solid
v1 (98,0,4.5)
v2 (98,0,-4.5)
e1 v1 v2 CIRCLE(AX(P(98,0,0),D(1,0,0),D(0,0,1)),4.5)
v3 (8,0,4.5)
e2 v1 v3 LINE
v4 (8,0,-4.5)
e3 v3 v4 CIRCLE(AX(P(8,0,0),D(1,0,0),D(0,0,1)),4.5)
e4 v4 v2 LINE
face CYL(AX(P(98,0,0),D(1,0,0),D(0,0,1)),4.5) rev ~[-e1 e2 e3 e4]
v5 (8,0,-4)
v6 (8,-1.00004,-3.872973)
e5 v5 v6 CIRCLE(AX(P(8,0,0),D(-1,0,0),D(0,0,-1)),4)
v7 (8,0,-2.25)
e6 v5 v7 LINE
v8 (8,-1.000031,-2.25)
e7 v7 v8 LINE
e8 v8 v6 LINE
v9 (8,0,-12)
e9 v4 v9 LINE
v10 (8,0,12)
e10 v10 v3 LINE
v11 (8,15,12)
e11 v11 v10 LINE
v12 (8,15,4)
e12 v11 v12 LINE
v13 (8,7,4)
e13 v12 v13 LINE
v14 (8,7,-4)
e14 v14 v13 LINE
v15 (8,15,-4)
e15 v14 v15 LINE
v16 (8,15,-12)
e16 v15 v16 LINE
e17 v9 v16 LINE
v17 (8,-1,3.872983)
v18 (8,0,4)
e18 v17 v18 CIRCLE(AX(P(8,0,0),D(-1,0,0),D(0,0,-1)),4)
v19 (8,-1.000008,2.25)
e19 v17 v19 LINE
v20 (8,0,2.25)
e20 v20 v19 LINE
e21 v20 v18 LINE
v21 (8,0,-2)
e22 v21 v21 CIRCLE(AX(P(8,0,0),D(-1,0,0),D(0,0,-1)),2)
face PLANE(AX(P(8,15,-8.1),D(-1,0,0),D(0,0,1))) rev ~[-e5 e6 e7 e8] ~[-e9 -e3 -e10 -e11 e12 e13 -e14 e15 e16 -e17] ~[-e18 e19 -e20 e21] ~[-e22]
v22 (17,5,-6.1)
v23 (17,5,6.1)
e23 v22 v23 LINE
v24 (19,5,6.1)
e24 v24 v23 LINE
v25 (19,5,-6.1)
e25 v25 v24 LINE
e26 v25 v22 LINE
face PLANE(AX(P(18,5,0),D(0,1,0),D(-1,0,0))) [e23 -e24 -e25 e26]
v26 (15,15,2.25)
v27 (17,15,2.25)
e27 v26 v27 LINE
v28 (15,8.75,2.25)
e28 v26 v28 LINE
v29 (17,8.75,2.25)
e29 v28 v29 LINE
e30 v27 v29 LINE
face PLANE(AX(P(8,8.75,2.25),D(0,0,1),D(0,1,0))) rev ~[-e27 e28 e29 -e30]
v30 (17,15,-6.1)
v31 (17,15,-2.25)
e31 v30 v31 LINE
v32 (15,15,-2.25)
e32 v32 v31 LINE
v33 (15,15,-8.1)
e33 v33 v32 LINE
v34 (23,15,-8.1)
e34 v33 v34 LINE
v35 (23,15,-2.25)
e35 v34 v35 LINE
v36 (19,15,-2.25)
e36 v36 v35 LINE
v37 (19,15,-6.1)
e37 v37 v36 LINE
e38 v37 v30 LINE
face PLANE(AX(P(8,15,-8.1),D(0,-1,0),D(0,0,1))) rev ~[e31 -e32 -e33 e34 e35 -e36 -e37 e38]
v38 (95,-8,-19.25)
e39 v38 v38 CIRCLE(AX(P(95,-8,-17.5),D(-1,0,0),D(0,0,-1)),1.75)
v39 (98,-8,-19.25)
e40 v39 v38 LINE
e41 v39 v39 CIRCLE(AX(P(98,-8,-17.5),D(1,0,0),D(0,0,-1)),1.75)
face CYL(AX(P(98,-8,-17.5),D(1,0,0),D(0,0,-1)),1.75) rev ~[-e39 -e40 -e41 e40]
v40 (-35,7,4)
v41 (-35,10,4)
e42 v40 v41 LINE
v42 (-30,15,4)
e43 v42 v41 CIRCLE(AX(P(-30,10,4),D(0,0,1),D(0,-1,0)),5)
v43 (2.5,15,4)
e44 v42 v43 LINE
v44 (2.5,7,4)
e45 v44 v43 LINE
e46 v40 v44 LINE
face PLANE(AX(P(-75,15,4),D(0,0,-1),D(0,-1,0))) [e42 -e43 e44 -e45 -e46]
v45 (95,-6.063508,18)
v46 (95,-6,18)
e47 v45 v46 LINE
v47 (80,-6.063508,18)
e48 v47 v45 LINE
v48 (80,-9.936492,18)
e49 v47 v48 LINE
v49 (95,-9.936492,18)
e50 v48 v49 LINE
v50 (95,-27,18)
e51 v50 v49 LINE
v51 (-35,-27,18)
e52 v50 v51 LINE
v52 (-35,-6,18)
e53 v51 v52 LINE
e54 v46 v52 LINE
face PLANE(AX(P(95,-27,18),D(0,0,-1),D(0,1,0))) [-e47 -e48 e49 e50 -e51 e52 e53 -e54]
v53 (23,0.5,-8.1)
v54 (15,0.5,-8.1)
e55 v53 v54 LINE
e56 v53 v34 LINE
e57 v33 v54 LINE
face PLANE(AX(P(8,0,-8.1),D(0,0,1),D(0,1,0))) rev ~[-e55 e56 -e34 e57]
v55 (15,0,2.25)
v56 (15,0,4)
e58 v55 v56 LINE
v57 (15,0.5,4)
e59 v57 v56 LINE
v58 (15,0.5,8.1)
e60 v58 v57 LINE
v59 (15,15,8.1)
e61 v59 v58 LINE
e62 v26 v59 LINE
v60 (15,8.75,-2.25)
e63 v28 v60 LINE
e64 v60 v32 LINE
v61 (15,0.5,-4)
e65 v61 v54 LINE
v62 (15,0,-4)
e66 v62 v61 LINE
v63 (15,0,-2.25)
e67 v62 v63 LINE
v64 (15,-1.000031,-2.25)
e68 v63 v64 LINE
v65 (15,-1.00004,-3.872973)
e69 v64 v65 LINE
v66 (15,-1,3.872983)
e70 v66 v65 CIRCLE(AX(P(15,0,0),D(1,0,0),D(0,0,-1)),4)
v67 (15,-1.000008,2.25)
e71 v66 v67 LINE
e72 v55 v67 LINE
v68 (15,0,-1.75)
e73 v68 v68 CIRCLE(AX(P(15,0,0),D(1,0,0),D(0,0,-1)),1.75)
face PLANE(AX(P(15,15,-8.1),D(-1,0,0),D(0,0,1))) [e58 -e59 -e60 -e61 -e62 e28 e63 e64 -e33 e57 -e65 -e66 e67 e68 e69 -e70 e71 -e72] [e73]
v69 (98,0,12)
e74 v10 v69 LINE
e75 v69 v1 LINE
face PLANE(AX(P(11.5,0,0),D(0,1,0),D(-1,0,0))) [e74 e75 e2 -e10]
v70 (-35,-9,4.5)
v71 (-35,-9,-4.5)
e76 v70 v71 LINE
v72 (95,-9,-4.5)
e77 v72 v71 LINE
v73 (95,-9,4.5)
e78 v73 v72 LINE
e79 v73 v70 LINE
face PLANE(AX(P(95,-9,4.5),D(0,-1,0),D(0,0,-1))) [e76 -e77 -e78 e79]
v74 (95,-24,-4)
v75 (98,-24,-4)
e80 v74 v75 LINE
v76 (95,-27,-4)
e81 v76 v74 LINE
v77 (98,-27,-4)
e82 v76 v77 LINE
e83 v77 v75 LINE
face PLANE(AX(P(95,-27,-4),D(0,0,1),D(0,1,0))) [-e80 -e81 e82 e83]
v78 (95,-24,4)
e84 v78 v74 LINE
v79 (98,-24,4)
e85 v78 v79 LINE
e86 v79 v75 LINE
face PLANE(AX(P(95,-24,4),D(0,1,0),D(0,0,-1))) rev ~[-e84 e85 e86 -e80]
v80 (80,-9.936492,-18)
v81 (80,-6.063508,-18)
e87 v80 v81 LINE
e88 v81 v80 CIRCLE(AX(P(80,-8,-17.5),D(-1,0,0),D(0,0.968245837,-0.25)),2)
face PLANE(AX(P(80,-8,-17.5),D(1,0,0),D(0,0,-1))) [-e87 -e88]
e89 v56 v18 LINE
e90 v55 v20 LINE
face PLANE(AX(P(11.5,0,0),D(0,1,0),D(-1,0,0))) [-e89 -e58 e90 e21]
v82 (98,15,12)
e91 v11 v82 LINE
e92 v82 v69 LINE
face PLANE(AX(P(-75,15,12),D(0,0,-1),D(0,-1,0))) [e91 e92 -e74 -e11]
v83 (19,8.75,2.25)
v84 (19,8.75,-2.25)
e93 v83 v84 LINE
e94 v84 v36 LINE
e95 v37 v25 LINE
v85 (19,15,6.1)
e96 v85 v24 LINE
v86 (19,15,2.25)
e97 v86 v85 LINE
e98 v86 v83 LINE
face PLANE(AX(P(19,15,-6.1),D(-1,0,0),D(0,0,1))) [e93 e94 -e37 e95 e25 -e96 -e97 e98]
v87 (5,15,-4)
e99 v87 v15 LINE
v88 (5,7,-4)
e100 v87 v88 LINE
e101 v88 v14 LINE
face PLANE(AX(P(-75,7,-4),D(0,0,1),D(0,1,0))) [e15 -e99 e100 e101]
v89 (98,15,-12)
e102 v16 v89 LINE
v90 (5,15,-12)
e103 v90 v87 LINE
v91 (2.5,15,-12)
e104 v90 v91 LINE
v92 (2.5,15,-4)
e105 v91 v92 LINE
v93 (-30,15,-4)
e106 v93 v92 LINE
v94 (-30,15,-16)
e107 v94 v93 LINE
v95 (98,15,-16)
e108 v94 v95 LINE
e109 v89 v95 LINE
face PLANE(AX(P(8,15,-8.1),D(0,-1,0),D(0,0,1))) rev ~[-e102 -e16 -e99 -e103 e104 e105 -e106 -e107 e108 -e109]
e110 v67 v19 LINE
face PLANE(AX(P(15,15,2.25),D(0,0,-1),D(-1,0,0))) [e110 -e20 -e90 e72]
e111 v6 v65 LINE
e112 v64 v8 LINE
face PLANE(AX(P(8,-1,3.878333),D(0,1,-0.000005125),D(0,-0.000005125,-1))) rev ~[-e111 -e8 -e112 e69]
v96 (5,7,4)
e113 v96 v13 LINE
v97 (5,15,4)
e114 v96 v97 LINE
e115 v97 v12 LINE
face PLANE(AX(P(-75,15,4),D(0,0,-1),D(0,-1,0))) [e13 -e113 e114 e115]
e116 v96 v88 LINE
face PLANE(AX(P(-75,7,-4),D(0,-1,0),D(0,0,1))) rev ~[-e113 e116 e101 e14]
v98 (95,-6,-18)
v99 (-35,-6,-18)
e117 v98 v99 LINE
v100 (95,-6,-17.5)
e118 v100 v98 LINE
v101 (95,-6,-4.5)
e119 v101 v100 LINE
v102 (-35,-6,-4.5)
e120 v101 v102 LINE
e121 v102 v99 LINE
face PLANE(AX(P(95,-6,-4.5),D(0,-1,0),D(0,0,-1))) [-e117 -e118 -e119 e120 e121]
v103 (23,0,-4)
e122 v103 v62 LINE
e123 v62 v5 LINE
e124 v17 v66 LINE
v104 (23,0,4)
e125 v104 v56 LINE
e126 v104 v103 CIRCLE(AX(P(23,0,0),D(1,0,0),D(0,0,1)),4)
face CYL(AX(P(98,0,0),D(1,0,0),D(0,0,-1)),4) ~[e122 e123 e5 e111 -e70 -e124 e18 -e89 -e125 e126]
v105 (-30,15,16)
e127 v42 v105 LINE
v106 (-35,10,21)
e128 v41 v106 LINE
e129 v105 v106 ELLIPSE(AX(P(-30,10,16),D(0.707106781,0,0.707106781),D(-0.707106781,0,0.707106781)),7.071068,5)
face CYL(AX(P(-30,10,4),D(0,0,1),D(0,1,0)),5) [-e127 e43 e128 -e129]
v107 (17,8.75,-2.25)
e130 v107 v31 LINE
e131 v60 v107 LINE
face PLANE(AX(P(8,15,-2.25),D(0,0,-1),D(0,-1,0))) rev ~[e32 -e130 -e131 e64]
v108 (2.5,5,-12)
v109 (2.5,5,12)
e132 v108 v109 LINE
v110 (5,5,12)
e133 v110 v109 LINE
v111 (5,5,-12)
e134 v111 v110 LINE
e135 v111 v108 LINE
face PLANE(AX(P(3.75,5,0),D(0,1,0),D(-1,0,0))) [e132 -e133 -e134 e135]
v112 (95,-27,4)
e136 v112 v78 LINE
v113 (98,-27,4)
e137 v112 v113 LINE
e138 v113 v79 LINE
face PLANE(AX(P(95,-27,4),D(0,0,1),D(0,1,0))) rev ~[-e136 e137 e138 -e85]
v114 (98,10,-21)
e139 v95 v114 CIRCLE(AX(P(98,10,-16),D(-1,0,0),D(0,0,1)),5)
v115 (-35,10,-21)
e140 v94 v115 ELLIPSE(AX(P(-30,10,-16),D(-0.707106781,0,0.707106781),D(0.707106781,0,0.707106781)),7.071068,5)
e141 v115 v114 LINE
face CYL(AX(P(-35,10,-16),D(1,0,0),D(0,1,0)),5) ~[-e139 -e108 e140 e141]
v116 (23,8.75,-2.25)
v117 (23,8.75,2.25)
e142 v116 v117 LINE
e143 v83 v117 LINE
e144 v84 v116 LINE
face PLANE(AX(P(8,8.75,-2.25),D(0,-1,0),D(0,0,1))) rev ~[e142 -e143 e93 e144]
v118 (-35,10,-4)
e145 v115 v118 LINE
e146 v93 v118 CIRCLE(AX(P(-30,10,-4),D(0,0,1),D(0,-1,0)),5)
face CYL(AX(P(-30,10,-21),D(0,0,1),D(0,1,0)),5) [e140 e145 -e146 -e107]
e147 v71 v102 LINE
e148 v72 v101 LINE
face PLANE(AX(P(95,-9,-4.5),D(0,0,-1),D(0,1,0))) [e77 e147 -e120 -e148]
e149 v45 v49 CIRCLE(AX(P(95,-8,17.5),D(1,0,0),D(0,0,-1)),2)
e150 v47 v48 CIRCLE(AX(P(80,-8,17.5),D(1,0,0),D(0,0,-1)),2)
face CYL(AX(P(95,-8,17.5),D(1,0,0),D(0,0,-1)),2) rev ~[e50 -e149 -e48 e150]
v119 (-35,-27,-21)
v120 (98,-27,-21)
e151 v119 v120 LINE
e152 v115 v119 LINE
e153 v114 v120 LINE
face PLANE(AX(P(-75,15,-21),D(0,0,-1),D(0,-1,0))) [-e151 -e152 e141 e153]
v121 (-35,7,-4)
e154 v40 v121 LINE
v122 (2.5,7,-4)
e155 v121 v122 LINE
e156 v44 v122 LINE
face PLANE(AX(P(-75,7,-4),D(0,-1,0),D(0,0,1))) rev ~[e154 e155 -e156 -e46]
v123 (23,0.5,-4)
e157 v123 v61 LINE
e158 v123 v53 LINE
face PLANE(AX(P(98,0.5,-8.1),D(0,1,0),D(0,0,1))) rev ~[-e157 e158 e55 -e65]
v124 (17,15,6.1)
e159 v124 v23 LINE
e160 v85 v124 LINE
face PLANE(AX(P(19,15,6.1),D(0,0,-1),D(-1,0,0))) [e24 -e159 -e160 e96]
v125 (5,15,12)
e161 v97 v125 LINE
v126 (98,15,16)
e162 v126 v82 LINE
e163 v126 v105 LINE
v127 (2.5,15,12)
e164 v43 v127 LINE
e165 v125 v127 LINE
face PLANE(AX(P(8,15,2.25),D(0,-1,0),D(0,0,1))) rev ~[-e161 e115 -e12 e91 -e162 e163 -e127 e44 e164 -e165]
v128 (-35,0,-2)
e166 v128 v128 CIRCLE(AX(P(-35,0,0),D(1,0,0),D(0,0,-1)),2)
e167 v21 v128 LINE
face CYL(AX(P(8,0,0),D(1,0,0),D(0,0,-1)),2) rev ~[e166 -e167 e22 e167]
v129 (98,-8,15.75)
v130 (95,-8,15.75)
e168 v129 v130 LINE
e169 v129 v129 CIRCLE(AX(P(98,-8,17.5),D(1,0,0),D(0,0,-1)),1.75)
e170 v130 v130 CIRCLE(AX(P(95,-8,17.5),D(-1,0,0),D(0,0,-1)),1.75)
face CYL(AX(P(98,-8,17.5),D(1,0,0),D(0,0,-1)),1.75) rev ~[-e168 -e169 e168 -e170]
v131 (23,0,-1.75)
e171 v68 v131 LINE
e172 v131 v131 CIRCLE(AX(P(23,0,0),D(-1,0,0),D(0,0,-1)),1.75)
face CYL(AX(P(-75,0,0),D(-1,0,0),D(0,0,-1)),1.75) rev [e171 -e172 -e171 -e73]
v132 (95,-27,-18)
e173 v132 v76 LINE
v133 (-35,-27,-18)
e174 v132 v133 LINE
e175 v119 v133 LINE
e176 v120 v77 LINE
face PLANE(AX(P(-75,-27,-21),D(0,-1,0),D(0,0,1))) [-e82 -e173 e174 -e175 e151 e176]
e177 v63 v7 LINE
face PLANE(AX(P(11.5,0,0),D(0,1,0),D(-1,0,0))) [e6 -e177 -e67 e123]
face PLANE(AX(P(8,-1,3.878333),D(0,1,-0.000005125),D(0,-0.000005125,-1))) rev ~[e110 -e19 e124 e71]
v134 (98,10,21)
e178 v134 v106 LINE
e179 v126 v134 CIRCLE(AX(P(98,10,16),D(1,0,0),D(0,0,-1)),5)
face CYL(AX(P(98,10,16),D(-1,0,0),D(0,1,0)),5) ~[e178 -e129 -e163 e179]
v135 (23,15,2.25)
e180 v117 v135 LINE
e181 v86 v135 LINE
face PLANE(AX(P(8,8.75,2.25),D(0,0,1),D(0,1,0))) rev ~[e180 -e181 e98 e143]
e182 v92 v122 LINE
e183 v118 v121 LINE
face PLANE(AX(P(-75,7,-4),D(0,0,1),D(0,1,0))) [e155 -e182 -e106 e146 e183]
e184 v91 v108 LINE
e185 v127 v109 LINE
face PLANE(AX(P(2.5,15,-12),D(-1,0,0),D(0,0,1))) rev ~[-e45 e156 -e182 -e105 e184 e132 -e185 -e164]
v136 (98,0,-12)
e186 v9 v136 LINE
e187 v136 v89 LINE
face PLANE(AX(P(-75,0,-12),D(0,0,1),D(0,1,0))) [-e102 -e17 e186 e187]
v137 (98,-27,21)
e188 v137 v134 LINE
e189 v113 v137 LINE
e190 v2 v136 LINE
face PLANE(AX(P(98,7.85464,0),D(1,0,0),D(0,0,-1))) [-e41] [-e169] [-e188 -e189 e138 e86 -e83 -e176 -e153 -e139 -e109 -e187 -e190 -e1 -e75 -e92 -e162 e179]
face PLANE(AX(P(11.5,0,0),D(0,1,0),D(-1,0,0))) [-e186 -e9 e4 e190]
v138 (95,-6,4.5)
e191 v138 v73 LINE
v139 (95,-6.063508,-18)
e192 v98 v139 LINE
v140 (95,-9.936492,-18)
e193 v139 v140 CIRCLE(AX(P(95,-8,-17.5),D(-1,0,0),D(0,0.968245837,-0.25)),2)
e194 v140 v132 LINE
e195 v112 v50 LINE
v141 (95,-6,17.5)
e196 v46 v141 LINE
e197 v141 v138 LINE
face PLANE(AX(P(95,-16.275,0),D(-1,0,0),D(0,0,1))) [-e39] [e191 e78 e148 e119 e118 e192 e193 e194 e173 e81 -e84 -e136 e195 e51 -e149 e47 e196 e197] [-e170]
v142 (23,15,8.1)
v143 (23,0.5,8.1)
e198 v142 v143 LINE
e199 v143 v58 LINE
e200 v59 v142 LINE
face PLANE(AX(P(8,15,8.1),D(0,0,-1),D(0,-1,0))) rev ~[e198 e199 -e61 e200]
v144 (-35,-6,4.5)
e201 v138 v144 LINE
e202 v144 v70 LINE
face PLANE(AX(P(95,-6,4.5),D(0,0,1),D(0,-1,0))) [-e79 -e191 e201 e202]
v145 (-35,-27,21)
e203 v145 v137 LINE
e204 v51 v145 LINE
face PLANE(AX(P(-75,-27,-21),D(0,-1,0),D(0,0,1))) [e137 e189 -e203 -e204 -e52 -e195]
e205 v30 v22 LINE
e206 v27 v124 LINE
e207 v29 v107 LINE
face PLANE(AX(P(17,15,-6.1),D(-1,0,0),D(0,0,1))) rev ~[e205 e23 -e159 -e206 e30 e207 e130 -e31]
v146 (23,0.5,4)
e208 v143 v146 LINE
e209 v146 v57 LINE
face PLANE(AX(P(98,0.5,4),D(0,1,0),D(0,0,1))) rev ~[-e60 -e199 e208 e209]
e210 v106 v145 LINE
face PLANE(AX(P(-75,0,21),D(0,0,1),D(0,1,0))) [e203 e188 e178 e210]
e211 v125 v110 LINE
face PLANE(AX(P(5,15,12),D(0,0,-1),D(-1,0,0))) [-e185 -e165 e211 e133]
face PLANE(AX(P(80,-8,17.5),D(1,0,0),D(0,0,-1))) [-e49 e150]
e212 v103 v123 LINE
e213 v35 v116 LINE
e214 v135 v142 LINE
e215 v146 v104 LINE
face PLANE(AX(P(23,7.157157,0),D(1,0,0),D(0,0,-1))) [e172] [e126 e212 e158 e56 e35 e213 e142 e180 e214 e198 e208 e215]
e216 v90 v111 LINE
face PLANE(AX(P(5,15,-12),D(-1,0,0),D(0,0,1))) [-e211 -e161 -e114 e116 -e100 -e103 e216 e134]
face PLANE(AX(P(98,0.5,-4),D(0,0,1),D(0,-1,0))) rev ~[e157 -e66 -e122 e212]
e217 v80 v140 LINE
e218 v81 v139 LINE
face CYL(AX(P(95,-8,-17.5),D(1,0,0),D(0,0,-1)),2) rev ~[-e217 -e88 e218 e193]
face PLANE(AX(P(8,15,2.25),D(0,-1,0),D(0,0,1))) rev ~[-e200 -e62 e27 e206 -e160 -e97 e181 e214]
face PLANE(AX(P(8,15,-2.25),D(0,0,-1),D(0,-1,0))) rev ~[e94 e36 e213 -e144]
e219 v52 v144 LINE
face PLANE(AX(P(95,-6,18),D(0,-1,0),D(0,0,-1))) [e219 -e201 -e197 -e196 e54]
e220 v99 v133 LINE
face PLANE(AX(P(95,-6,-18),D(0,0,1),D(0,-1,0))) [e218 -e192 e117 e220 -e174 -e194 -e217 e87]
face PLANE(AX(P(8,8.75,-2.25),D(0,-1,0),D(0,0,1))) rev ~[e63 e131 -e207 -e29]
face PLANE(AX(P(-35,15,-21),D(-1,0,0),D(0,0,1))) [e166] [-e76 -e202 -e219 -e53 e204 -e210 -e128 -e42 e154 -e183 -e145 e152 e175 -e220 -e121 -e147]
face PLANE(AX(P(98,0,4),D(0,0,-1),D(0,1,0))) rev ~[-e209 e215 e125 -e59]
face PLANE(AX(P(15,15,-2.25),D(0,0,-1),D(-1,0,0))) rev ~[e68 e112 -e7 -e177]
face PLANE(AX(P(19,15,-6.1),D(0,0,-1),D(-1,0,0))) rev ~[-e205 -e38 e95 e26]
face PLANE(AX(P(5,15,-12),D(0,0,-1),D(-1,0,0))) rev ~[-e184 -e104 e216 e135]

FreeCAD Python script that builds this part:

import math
import FreeCAD as App
import Part
import Sketcher

V = App.Vector
Q = App.Units.Quantity


def edges_at(feature, points):
    """Names of the edges that pass closest to the given points."""
    edges = feature.Shape.Edges
    near = lambda p: min(range(len(edges)), key=lambda i: edges[i].distToShape(Part.Vertex(*p))[0])
    return sorted({f"Edge{near(p) + 1}" for p in points})


def add_polygon(sketch, points):
    """Adds a closed chain of lines whose ends are joined by coincident constraints."""
    first, n = sketch.GeometryCount, len(points)
    for a, b in zip(points, points[1:] + points[:1]):
        sketch.addGeometry(Part.LineSegment(App.Vector(*a, 0), App.Vector(*b, 0)), False)
    for i in range(n):
        sketch.addConstraint(Sketcher.Constraint("Coincident", first + i, 2, first + (i + 1) % n, 1))

doc = App.newDocument("Part")
body = doc.addObject("PartDesign::Body", "Body")

sketch1 = body.newObject("Sketcher::SketchObject", "Sketch")
sketch1.AttachmentSupport = (doc.getObject("YZ_Plane"), [""])
sketch1.MapMode = "FlatFace"
add_polygon(sketch1, [(15, 21), (0, 21), (0, -21), (15, -21), (15, -4), (7, -4), (7, 4), (15, 4)])
sketch1.addConstraint([
    Sketcher.Constraint("Horizontal", 0),
    Sketcher.Constraint("Vertical", 1),
    Sketcher.Constraint("Horizontal", 2),
    Sketcher.Constraint("Vertical", 3),
    Sketcher.Constraint("Horizontal", 4),
    Sketcher.Constraint("Vertical", 5),
    Sketcher.Constraint("Horizontal", 6),
    Sketcher.Constraint("Vertical", 7),
    Sketcher.Constraint("Symmetric", 0, 2, 1, 2, -1, 1),
    Sketcher.Constraint("Symmetric", 3, 2, 6, 2, -1),
    Sketcher.Constraint("Equal", 6, 5),
    Sketcher.Constraint("DistanceX", 0, 2, 0, 1, Q("15 mm")),
    Sketcher.Constraint("DistanceX", 4, 2, 4, 1, Q("8 mm")),
    Sketcher.Constraint("DistanceY", 1, 2, 1, 1, Q("42 mm")),
])
pad1 = body.newObject("PartDesign::Pad", "Pad")
pad1.Profile = sketch1
pad1.Type = "TwoLengths"
pad1.Length = 8
pad1.Length2 = 75

sketch2 = body.newObject("Sketcher::SketchObject", "Sketch001")
sketch2.AttachmentSupport = (doc.getObject("XZ_Plane"), [""])
sketch2.MapMode = "FlatFace"
sketch2.AttachmentOffset = App.Placement(V(0, 0, -15), App.Rotation())
add_polygon(sketch2, [(5, 12), (5, -12), (2.5, -12), (2.5, 12)])
sketch2.addConstraint([
    Sketcher.Constraint("Vertical", 0),
    Sketcher.Constraint("Horizontal", 1),
    Sketcher.Constraint("Vertical", 2),
    Sketcher.Constraint("Horizontal", 3),
    Sketcher.Constraint("DistanceY", 0, 2, 0, 1, Q("24 mm")),
    Sketcher.Constraint("DistanceX", 1, 2, 1, 1, Q("2.5 mm")),
    Sketcher.Constraint("DistanceX", -1, 1, 0, 2, Q("5 mm")),
    Sketcher.Constraint("DistanceY", 0, 2, -1, 1, Q("12 mm")),
])
pocket1 = body.newObject("PartDesign::Pocket", "Pocket")
pocket1.Profile = sketch2
pocket1.Length = 10
pocket1.Reversed = True

sketch3 = body.newObject("Sketcher::SketchObject", "Sketch002")
sketch3.AttachmentSupport = (doc.getObject("YZ_Plane"), [""])
sketch3.MapMode = "FlatFace"
sketch3.AttachmentOffset = App.Placement(V(0, 0, 8), App.Rotation())
add_polygon(sketch3, [(0, 12), (15, 12), (15, 21), (-27, 21), (-27, -21), (15, -21), (15, -12), (0, -12)])
sketch3.addConstraint([
    Sketcher.Constraint("Horizontal", 0),
    Sketcher.Constraint("Vertical", 1),
    Sketcher.Constraint("Horizontal", 2),
    Sketcher.Constraint("Vertical", 3),
    Sketcher.Constraint("Horizontal", 4),
    Sketcher.Constraint("Vertical", 5),
    Sketcher.Constraint("Horizontal", 6),
    Sketcher.Constraint("Vertical", 7),
    Sketcher.Constraint("Symmetric", 6, 2, 7, 2, -1, 1),
    Sketcher.Constraint("Symmetric", 1, 2, 4, 2, -1),
    Sketcher.Constraint("Equal", 4, 3),
    Sketcher.Constraint("DistanceX", 0, 1, 0, 2, Q("15 mm")),
    Sketcher.Constraint("DistanceX", 2, 2, 2, 1, Q("42 mm")),
    Sketcher.Constraint("DistanceY", 1, 1, 1, 2, Q("9 mm")),
])
pad2 = body.newObject("PartDesign::Pad", "Pad001")
pad2.Profile = sketch3
pad2.Type = "TwoLengths"
pad2.Length = 90
pad2.Length2 = 83

sketch4 = body.newObject("Sketcher::SketchObject", "Sketch003")
sketch4.AttachmentSupport = (doc.getObject("YZ_Plane"), [""])
sketch4.MapMode = "FlatFace"
sketch4.AttachmentOffset = App.Placement(V(0, 0, 8), App.Rotation())
add_polygon(sketch4, [(15, -2.25), (8.75, -2.25), (8.75, 2.25), (15, 2.25), (15, 8.1), (0, 8.1), (0, -8.1), (15, -8.1)])
sketch4.addConstraint([
    Sketcher.Constraint("Horizontal", 0),
    Sketcher.Constraint("Vertical", 1),
    Sketcher.Constraint("Horizontal", 2),
    Sketcher.Constraint("Vertical", 3),
    Sketcher.Constraint("Horizontal", 4),
    Sketcher.Constraint("Vertical", 5),
    Sketcher.Constraint("Horizontal", 6),
    Sketcher.Constraint("Vertical", 7),
    Sketcher.Constraint("Symmetric", 4, 2, 5, 2, -1, 1),
    Sketcher.Constraint("Symmetric", 2, 2, 7, 2, -1),
    Sketcher.Constraint("DistanceX", 4, 2, 4, 1, Q("15 mm")),
    Sketcher.Constraint("DistanceY", 1, 1, 1, 2, Q("4.5 mm")),
    Sketcher.Constraint("DistanceY", 5, 2, 5, 1, Q("16.2 mm")),
    Sketcher.Constraint("DistanceX", 0, 2, 0, 1, Q("6.25 mm")),
])
pad3 = body.newObject("PartDesign::Pad", "Pad002")
pad3.Profile = sketch4
pad3.Length = 90

sketch5 = body.newObject("Sketcher::SketchObject", "Sketch004")
sketch5.AttachmentSupport = (doc.getObject("XZ_Plane"), [""])
sketch5.MapMode = "FlatFace"
sketch5.AttachmentOffset = App.Placement(V(0, 0, -15), App.Rotation())
add_polygon(sketch5, [(15, 8.1), (15, -8.1), (8, -8.1), (8, 8.1)])
sketch5.addConstraint([
    Sketcher.Constraint("Vertical", 0),
    Sketcher.Constraint("Horizontal", 1),
    Sketcher.Constraint("Vertical", 2),
    Sketcher.Constraint("Horizontal", 3),
    Sketcher.Constraint("DistanceX", 1, 2, 1, 1, Q("7 mm")),
    Sketcher.Constraint("DistanceY", 0, 2, 0, 1, Q("16.2 mm")),
    Sketcher.Constraint("DistanceX", -1, 1, 0, 2, Q("15 mm")),
    Sketcher.Constraint("DistanceY", 0, 2, -1, 1, Q("8.1 mm")),
])
pocket2 = body.newObject("PartDesign::Pocket", "Pocket001")
pocket2.Profile = sketch5
pocket2.Length = 15
pocket2.Reversed = True

sketch6 = body.newObject("Sketcher::SketchObject", "Sketch005")
sketch6.AttachmentSupport = (doc.getObject("XZ_Plane"), [""])
sketch6.MapMode = "FlatFace"
sketch6.AttachmentOffset = App.Placement(V(0, 0, -15), App.Rotation())
add_polygon(sketch6, [(19, 6.1), (19, -6.1), (17, -6.1), (17, 6.1)])
sketch6.addConstraint([
    Sketcher.Constraint("Vertical", 0),
    Sketcher.Constraint("Horizontal", 1),
    Sketcher.Constraint("Vertical", 2),
    Sketcher.Constraint("Horizontal", 3),
    Sketcher.Constraint("DistanceX", 1, 2, 1, 1, Q("2 mm")),
    Sketcher.Constraint("DistanceY", 0, 2, 0, 1, Q("12.2 mm")),
    Sketcher.Constraint("DistanceX", -1, 1, 0, 2, Q("19 mm")),
    Sketcher.Constraint("DistanceY", 0, 2, -1, 1, Q("6.1 mm")),
])
pocket3 = body.newObject("PartDesign::Pocket", "Pocket002")
pocket3.Profile = sketch6
pocket3.Length = 10
pocket3.Reversed = True

sketch7 = body.newObject("Sketcher::SketchObject", "Sketch006")
sketch7.AttachmentSupport = (doc.getObject("YZ_Plane"), [""])
sketch7.MapMode = "FlatFace"
sketch7.AttachmentOffset = App.Placement(V(0, 0, 98), App.Rotation())
sketch7.addGeometry([
    Part.LineSegment(V(0, -4.5, 0), V(0, -8.1, 0)),
    Part.LineSegment(V(0, -8.1, 0), V(0.5, -8.1, 0)),
    Part.LineSegment(V(0.5, -8.1, 0), V(0.5, -4, 0)),
    Part.LineSegment(V(0.5, -4, 0), V(0, -4, 0)),
    Part.ArcOfCircle(Part.Circle(V(0, 0, 0), V(0, 0, 1), 4), math.radians(90), math.radians(270)),
    Part.LineSegment(V(0, 4, 0), V(0.5, 4, 0)),
    Part.LineSegment(V(0.5, 4, 0), V(0.5, 8.1, 0)),
    Part.LineSegment(V(0.5, 8.1, 0), V(0, 8.1, 0)),
    Part.LineSegment(V(0, 8.1, 0), V(0, 4.5, 0)),
    Part.ArcOfCircle(Part.Circle(V(0, 0, 0), V(0, 0, 1), 4.5), math.radians(90), math.radians(270)),
], False)
sketch7.addConstraint([
    Sketcher.Constraint("Coincident", 0, 2, 1, 1),
    Sketcher.Constraint("Coincident", 1, 2, 2, 1),
    Sketcher.Constraint("Coincident", 2, 2, 3, 1),
    Sketcher.Constraint("Tangent", 3, 2, 4, 2),
    Sketcher.Constraint("Tangent", 4, 1, 5, 1),
    Sketcher.Constraint("Coincident", 5, 2, 6, 1),
    Sketcher.Constraint("Coincident", 6, 2, 7, 1),
    Sketcher.Constraint("Coincident", 7, 2, 8, 1),
    Sketcher.Constraint("Coincident", 8, 2, 9, 1),
    Sketcher.Constraint("Coincident", 9, 2, 0, 1),
    Sketcher.Constraint("Vertical", 0),
    Sketcher.Constraint("Horizontal", 1),
    Sketcher.Constraint("Vertical", 2),
    Sketcher.Constraint("Horizontal", 3),
    Sketcher.Constraint("Horizontal", 5),
    Sketcher.Constraint("Vertical", 6),
    Sketcher.Constraint("Horizontal", 7),
    Sketcher.Constraint("Vertical", 8),
    Sketcher.Constraint("Coincident", 4, 3, -1, 1),
    Sketcher.Constraint("Coincident", 9, 3, -1, 1),
    Sketcher.Constraint("Symmetric", 0, 2, 7, 2, -1, 1),
    Sketcher.Constraint("PointOnObject", 0, 2, -2),
    Sketcher.Constraint("Vertical", 2, 2, 5, 2),
    Sketcher.Constraint("Radius", 4, Q("4 mm")),
    Sketcher.Constraint("Radius", 9, Q("4.5 mm")),
    Sketcher.Constraint("DistanceX", 1, 1, 1, 2, Q("0.5 mm")),
    Sketcher.Constraint("DistanceY", 0, 2, 0, 1, Q("3.6 mm")),
])
pocket4 = body.newObject("PartDesign::Pocket", "Pocket003")
pocket4.Profile = sketch7
pocket4.Length = 90

sketch8 = body.newObject("Sketcher::SketchObject", "Sketch007")
sketch8.AttachmentSupport = (doc.getObject("YZ_Plane"), [""])
sketch8.MapMode = "FlatFace"
sketch8.AttachmentOffset = App.Placement(V(0, 0, 98), App.Rotation())
sketch8.addGeometry([
    Part.LineSegment(V(15, 2.25, 0), V(15, 8.1, 0)),
    Part.LineSegment(V(15, 8.1, 0), V(0.5, 8.1, 0)),
    Part.LineSegment(V(0.5, 8.1, 0), V(0.5, 4, 0)),
    Part.LineSegment(V(0.5, 4, 0), V(0, 4, 0)),
    Part.ArcOfCircle(Part.Circle(V(0, 0, 0), V(0, 0, 1), 4), math.radians(90), math.radians(270)),
    Part.LineSegment(V(0, -4, 0), V(0.5, -4, 0)),
    Part.LineSegment(V(0.5, -4, 0), V(0.5, -8.1, 0)),
    Part.LineSegment(V(0.5, -8.1, 0), V(15, -8.1, 0)),
    Part.LineSegment(V(15, -8.1, 0), V(15, -2.25, 0)),
    Part.LineSegment(V(15, -2.25, 0), V(8.75, -2.25, 0)),
    Part.LineSegment(V(8.75, -2.25, 0), V(8.75, 2.25, 0)),
    Part.LineSegment(V(8.75, 2.25, 0), V(15, 2.25, 0)),
], False)
sketch8.addConstraint([
    Sketcher.Constraint("Coincident", 0, 2, 1, 1),
    Sketcher.Constraint("Coincident", 1, 2, 2, 1),
    Sketcher.Constraint("Coincident", 2, 2, 3, 1),
    Sketcher.Constraint("Tangent", 3, 2, 4, 1),
    Sketcher.Constraint("Tangent", 4, 2, 5, 1),
    Sketcher.Constraint("Coincident", 5, 2, 6, 1),
    Sketcher.Constraint("Coincident", 6, 2, 7, 1),
    Sketcher.Constraint("Coincident", 7, 2, 8, 1),
    Sketcher.Constraint("Coincident", 8, 2, 9, 1),
    Sketcher.Constraint("Coincident", 9, 2, 10, 1),
    Sketcher.Constraint("Coincident", 10, 2, 11, 1),
    Sketcher.Constraint("Coincident", 11, 2, 0, 1),
    Sketcher.Constraint("Vertical", 0),
    Sketcher.Constraint("Horizontal", 1),
    Sketcher.Constraint("Vertical", 2),
    Sketcher.Constraint("Horizontal", 3),
    Sketcher.Constraint("Horizontal", 5),
    Sketcher.Constraint("Vertical", 6),
    Sketcher.Constraint("Horizontal", 7),
    Sketcher.Constraint("Vertical", 8),
    Sketcher.Constraint("Horizontal", 9),
    Sketcher.Constraint("Vertical", 10),
    Sketcher.Constraint("Horizontal", 11),
    Sketcher.Constraint("Coincident", 4, 3, -1, 1),
    Sketcher.Constraint("Symmetric", 1, 2, 6, 2, -1),
    Sketcher.Constraint("Symmetric", 8, 2, 11, 2, -1),
    Sketcher.Constraint("Radius", 4, Q("4 mm")),
    Sketcher.Constraint("DistanceX", 1, 2, 1, 1, Q("14.5 mm")),
    Sketcher.Constraint("DistanceX", 3, 2, 3, 1, Q("0.5 mm")),
    Sketcher.Constraint("DistanceY", 2, 2, 2, 1, Q("4.1 mm")),
    Sketcher.Constraint("DistanceY", 10, 1, 10, 2, Q("4.5 mm")),
    Sketcher.Constraint("DistanceX", 9, 2, 9, 1, Q("6.25 mm")),
])
pocket5 = body.newObject("PartDesign::Pocket", "Pocket004")
pocket5.Profile = sketch8
pocket5.Length = 75

sketch9 = body.newObject("Sketcher::SketchObject", "Sketch008")
sketch9.AttachmentSupport = (doc.getObject("YZ_Plane"), [""])
sketch9.MapMode = "FlatFace"
sketch9.AttachmentOffset = App.Placement(V(0, 0, 8), App.Rotation())
sketch9.addGeometry(Part.Circle(V(0, 0, 0), V(0, 0, 1), 1.75), False)
sketch9.addConstraint([
    Sketcher.Constraint("Coincident", 0, 3, -1, 1),
    Sketcher.Constraint("Diameter", 0, Q("3.5 mm")),
])
pocket6 = body.newObject("PartDesign::Pocket", "Pocket005")
pocket6.Profile = sketch9
pocket6.Type = "ThroughAll"
pocket6.Midplane = True

sketch10 = body.newObject("Sketcher::SketchObject", "Sketch009")
sketch10.AttachmentSupport = (doc.getObject("YZ_Plane"), [""])
sketch10.MapMode = "FlatFace"
sketch10.AttachmentOffset = App.Placement(V(0, 0, 8), App.Rotation())
sketch10.addGeometry(Part.Circle(V(0, 0, 0), V(0, 0, 1), 2), False)
sketch10.addConstraint([
    Sketcher.Constraint("Coincident", 0, 3, -1, 1),
    Sketcher.Constraint("Diameter", 0, Q("4 mm")),
])
pocket7 = body.newObject("PartDesign::Pocket", "Pocket006")
pocket7.Profile = sketch10
pocket7.Length = 83

sketch11 = body.newObject("Sketcher::SketchObject", "Sketch010")
sketch11.AttachmentSupport = (doc.getObject("YZ_Plane"), [""])
sketch11.MapMode = "FlatFace"
sketch11.AttachmentOffset = App.Placement(V(0, 0, 98), App.Rotation())
sketch11.addGeometry([
    Part.Circle(V(-8, -17.5, 0), V(0, 0, 1), 1.75),
    Part.Circle(V(-8, 17.5, 0), V(0, 0, 1), 1.75),
], False)
sketch11.addConstraint([
    Sketcher.Constraint("Equal", 0, 1),
    Sketcher.Constraint("Symmetric", 0, 3, 1, 3, -1),
    Sketcher.Constraint("Diameter", 0, Q("3.5 mm")),
    Sketcher.Constraint("DistanceX", 0, 3, -1, 1, Q("8 mm")),
    Sketcher.Constraint("DistanceY", 0, 3, 1, 3, Q("35 mm")),
])
pocket8 = body.newObject("PartDesign::Pocket", "Pocket007")
pocket8.Profile = sketch11
pocket8.Length = 3

sketch12 = body.newObject("Sketcher::SketchObject", "Sketch011")
sketch12.AttachmentSupport = (doc.getObject("YZ_Plane"), [""])
sketch12.MapMode = "FlatFace"
sketch12.AttachmentOffset = App.Placement(V(0, 0, 95), App.Rotation())
add_polygon(sketch12, [(-27, -18), (-6, -18), (-6, -4.5), (-9, -4.5), (-9, 4.5), (-6, 4.5), (-6, 18), (-27, 18)])
sketch12.addConstraint([
    Sketcher.Constraint("Horizontal", 0),
    Sketcher.Constraint("Vertical", 1),
    Sketcher.Constraint("Horizontal", 2),
    Sketcher.Constraint("Vertical", 3),
    Sketcher.Constraint("Horizontal", 4),
    Sketcher.Constraint("Vertical", 5),
    Sketcher.Constraint("Horizontal", 6),
    Sketcher.Constraint("Vertical", 7),
    Sketcher.Constraint("Symmetric", 1, 2, 4, 2, -1),
    Sketcher.Constraint("Equal", 1, 5),
    Sketcher.Constraint("DistanceX", 0, 1, 0, 2, Q("21 mm")),
    Sketcher.Constraint("DistanceX", 2, 2, 2, 1, Q("3 mm")),
    Sketcher.Constraint("DistanceY", 3, 1, 3, 2, Q("9 mm")),
    Sketcher.Constraint("DistanceY", 7, 2, 7, 1, Q("36 mm")),
    Sketcher.Constraint("DistanceX", 0, 2, -1, 1, Q("6 mm")),
])
pocket9 = body.newObject("PartDesign::Pocket", "Pocket008")
pocket9.Profile = sketch12
pocket9.Length = 170

sketch13 = body.newObject("Sketcher::SketchObject", "Sketch012")
sketch13.AttachmentSupport = (doc.getObject("YZ_Plane"), [""])
sketch13.MapMode = "FlatFace"
sketch13.AttachmentOffset = App.Placement(V(0, 0, 95), App.Rotation())
sketch13.addGeometry([
    Part.Circle(V(-8, 17.5, 0), V(0, 0, 1), 2),
    Part.Circle(V(-8, -17.5, 0), V(0, 0, 1), 2),
], False)
sketch13.addConstraint([
    Sketcher.Constraint("Equal", 0, 1),
    Sketcher.Constraint("Symmetric", 0, 3, 1, 3, -1),
    Sketcher.Constraint("Diameter", 0, Q("4 mm")),
    Sketcher.Constraint("DistanceX", 0, 3, -1, 1, Q("8 mm")),
    Sketcher.Constraint("DistanceY", 1, 3, 0, 3, Q("35 mm")),
])
pocket10 = body.newObject("PartDesign::Pocket", "Pocket009")
pocket10.Profile = sketch13
pocket10.Length = 15

sketch14 = body.newObject("Sketcher::SketchObject", "Sketch013")
sketch14.AttachmentSupport = (doc.getObject("YZ_Plane"), [""])
sketch14.MapMode = "FlatFace"
sketch14.AttachmentOffset = App.Placement(V(0, 0, 95), App.Rotation())
add_polygon(sketch14, [(-24, 4), (-27, 4), (-27, -4), (-24, -4)])
sketch14.addConstraint([
    Sketcher.Constraint("Horizontal", 0),
    Sketcher.Constraint("Vertical", 1),
    Sketcher.Constraint("Horizontal", 2),
    Sketcher.Constraint("Vertical", 3),
    Sketcher.Constraint("DistanceX", 0, 2, 0, 1, Q("3 mm")),
    Sketcher.Constraint("DistanceY", 1, 2, 1, 1, Q("8 mm")),
    Sketcher.Constraint("DistanceX", 0, 2, -1, 1, Q("27 mm")),
    Sketcher.Constraint("DistanceY", -1, 1, 0, 2, Q("4 mm")),
])
pocket11 = body.newObject("PartDesign::Pocket", "Pocket010")
pocket11.Profile = sketch14
pocket11.Length = 3
pocket11.Reversed = True

sketch15 = body.newObject("Sketcher::SketchObject", "Sketch014")
sketch15.AttachmentSupport = (doc.getObject("YZ_Plane"), [""])
sketch15.MapMode = "FlatFace"
sketch15.AttachmentOffset = App.Placement(V(0, 0, 8), App.Rotation())
sketch15.addGeometry([
    Part.LineSegment(V(-1.00004, -3.878323, 0), V(-1, 3.878333, 0)),
    Part.ArcOfCircle(Part.Circle(V(0, 0, 0), V(0, 0, 1), 4.00518), math.radians(104.458379), math.radians(255.541034)),
], False)
sketch15.addConstraint([
    Sketcher.Constraint("Coincident", 0, 1, 1, 2),
    Sketcher.Constraint("Coincident", 1, 1, 0, 2),
    Sketcher.Constraint("Coincident", 1, 3, -1, 1),
    Sketcher.Constraint("DistanceX", 1, 1, -1, 1, Q("1 mm")),
    Sketcher.Constraint("Radius", 1, Q("4.00518 mm")),
    Sketcher.Constraint("DistanceX", 0, 1, -1, 1, Q("1.00004 mm")),
])
pocket12 = body.newObject("PartDesign::Pocket", "Pocket011")
pocket12.Profile = sketch15
pocket12.Length = 7
pocket12.Reversed = True

sketch16 = body.newObject("Sketcher::SketchObject", "Sketch015")
sketch16.AttachmentSupport = (doc.getObject("XZ_Plane"), [""])
sketch16.MapMode = "FlatFace"
sketch16.AttachmentOffset = App.Placement(V(0, 0, -15), App.Rotation())
add_polygon(sketch16, [(15, 2.25), (15, -2.25), (8, -2.25), (8, 2.25)])
sketch16.addConstraint([
    Sketcher.Constraint("Vertical", 0),
    Sketcher.Constraint("Horizontal", 1),
    Sketcher.Constraint("Vertical", 2),
    Sketcher.Constraint("Horizontal", 3),
    Sketcher.Constraint("DistanceX", 1, 2, 1, 1, Q("7 mm")),
    Sketcher.Constraint("DistanceY", 0, 2, 0, 1, Q("4.5 mm")),
    Sketcher.Constraint("DistanceX", -1, 1, 0, 2, Q("15 mm")),
    Sketcher.Constraint("DistanceY", 0, 2, -1, 1, Q("2.25 mm")),
])
pocket13 = body.newObject("PartDesign::Pocket", "Pocket012")
pocket13.Profile = sketch16
pocket13.Length = 17
pocket13.Reversed = True

sketch17 = body.newObject("Sketcher::SketchObject", "Sketch016")
sketch17.AttachmentSupport = (doc.getObject("XZ_Plane"), [""])
sketch17.MapMode = "FlatFace"
sketch17.AttachmentOffset = App.Placement(V(0, 0, -15), App.Rotation())
add_polygon(sketch17, [(-35, 21), (-35, -21), (-75, -21), (-75, 21)])
sketch17.addConstraint([
    Sketcher.Constraint("Vertical", 0),
    Sketcher.Constraint("Horizontal", 1),
    Sketcher.Constraint("Vertical", 2),
    Sketcher.Constraint("Horizontal", 3),
    Sketcher.Constraint("DistanceX", 1, 2, 1, 1, Q("40 mm")),
    Sketcher.Constraint("DistanceY", 0, 2, 0, 1, Q("42 mm")),
    Sketcher.Constraint("DistanceX", 0, 2, -1, 1, Q("35 mm")),
    Sketcher.Constraint("DistanceY", 0, 2, -1, 1, Q("21 mm")),
])
pocket14 = body.newObject("PartDesign::Pocket", "Pocket013")
pocket14.Profile = sketch17
pocket14.Length = 42
pocket14.Reversed = True
doc.recompute()

fillet = body.newObject("PartDesign::Fillet", "Fillet")
fillet.Base = (pocket14, edges_at(pocket14, [
    (31.5, 15, -21),
    (31.5, 15, 21),
    (-35, 15, 12.5),
    (-35, 15, -12.5),
]))
fillet.Radius = 5

doc.recompute()
